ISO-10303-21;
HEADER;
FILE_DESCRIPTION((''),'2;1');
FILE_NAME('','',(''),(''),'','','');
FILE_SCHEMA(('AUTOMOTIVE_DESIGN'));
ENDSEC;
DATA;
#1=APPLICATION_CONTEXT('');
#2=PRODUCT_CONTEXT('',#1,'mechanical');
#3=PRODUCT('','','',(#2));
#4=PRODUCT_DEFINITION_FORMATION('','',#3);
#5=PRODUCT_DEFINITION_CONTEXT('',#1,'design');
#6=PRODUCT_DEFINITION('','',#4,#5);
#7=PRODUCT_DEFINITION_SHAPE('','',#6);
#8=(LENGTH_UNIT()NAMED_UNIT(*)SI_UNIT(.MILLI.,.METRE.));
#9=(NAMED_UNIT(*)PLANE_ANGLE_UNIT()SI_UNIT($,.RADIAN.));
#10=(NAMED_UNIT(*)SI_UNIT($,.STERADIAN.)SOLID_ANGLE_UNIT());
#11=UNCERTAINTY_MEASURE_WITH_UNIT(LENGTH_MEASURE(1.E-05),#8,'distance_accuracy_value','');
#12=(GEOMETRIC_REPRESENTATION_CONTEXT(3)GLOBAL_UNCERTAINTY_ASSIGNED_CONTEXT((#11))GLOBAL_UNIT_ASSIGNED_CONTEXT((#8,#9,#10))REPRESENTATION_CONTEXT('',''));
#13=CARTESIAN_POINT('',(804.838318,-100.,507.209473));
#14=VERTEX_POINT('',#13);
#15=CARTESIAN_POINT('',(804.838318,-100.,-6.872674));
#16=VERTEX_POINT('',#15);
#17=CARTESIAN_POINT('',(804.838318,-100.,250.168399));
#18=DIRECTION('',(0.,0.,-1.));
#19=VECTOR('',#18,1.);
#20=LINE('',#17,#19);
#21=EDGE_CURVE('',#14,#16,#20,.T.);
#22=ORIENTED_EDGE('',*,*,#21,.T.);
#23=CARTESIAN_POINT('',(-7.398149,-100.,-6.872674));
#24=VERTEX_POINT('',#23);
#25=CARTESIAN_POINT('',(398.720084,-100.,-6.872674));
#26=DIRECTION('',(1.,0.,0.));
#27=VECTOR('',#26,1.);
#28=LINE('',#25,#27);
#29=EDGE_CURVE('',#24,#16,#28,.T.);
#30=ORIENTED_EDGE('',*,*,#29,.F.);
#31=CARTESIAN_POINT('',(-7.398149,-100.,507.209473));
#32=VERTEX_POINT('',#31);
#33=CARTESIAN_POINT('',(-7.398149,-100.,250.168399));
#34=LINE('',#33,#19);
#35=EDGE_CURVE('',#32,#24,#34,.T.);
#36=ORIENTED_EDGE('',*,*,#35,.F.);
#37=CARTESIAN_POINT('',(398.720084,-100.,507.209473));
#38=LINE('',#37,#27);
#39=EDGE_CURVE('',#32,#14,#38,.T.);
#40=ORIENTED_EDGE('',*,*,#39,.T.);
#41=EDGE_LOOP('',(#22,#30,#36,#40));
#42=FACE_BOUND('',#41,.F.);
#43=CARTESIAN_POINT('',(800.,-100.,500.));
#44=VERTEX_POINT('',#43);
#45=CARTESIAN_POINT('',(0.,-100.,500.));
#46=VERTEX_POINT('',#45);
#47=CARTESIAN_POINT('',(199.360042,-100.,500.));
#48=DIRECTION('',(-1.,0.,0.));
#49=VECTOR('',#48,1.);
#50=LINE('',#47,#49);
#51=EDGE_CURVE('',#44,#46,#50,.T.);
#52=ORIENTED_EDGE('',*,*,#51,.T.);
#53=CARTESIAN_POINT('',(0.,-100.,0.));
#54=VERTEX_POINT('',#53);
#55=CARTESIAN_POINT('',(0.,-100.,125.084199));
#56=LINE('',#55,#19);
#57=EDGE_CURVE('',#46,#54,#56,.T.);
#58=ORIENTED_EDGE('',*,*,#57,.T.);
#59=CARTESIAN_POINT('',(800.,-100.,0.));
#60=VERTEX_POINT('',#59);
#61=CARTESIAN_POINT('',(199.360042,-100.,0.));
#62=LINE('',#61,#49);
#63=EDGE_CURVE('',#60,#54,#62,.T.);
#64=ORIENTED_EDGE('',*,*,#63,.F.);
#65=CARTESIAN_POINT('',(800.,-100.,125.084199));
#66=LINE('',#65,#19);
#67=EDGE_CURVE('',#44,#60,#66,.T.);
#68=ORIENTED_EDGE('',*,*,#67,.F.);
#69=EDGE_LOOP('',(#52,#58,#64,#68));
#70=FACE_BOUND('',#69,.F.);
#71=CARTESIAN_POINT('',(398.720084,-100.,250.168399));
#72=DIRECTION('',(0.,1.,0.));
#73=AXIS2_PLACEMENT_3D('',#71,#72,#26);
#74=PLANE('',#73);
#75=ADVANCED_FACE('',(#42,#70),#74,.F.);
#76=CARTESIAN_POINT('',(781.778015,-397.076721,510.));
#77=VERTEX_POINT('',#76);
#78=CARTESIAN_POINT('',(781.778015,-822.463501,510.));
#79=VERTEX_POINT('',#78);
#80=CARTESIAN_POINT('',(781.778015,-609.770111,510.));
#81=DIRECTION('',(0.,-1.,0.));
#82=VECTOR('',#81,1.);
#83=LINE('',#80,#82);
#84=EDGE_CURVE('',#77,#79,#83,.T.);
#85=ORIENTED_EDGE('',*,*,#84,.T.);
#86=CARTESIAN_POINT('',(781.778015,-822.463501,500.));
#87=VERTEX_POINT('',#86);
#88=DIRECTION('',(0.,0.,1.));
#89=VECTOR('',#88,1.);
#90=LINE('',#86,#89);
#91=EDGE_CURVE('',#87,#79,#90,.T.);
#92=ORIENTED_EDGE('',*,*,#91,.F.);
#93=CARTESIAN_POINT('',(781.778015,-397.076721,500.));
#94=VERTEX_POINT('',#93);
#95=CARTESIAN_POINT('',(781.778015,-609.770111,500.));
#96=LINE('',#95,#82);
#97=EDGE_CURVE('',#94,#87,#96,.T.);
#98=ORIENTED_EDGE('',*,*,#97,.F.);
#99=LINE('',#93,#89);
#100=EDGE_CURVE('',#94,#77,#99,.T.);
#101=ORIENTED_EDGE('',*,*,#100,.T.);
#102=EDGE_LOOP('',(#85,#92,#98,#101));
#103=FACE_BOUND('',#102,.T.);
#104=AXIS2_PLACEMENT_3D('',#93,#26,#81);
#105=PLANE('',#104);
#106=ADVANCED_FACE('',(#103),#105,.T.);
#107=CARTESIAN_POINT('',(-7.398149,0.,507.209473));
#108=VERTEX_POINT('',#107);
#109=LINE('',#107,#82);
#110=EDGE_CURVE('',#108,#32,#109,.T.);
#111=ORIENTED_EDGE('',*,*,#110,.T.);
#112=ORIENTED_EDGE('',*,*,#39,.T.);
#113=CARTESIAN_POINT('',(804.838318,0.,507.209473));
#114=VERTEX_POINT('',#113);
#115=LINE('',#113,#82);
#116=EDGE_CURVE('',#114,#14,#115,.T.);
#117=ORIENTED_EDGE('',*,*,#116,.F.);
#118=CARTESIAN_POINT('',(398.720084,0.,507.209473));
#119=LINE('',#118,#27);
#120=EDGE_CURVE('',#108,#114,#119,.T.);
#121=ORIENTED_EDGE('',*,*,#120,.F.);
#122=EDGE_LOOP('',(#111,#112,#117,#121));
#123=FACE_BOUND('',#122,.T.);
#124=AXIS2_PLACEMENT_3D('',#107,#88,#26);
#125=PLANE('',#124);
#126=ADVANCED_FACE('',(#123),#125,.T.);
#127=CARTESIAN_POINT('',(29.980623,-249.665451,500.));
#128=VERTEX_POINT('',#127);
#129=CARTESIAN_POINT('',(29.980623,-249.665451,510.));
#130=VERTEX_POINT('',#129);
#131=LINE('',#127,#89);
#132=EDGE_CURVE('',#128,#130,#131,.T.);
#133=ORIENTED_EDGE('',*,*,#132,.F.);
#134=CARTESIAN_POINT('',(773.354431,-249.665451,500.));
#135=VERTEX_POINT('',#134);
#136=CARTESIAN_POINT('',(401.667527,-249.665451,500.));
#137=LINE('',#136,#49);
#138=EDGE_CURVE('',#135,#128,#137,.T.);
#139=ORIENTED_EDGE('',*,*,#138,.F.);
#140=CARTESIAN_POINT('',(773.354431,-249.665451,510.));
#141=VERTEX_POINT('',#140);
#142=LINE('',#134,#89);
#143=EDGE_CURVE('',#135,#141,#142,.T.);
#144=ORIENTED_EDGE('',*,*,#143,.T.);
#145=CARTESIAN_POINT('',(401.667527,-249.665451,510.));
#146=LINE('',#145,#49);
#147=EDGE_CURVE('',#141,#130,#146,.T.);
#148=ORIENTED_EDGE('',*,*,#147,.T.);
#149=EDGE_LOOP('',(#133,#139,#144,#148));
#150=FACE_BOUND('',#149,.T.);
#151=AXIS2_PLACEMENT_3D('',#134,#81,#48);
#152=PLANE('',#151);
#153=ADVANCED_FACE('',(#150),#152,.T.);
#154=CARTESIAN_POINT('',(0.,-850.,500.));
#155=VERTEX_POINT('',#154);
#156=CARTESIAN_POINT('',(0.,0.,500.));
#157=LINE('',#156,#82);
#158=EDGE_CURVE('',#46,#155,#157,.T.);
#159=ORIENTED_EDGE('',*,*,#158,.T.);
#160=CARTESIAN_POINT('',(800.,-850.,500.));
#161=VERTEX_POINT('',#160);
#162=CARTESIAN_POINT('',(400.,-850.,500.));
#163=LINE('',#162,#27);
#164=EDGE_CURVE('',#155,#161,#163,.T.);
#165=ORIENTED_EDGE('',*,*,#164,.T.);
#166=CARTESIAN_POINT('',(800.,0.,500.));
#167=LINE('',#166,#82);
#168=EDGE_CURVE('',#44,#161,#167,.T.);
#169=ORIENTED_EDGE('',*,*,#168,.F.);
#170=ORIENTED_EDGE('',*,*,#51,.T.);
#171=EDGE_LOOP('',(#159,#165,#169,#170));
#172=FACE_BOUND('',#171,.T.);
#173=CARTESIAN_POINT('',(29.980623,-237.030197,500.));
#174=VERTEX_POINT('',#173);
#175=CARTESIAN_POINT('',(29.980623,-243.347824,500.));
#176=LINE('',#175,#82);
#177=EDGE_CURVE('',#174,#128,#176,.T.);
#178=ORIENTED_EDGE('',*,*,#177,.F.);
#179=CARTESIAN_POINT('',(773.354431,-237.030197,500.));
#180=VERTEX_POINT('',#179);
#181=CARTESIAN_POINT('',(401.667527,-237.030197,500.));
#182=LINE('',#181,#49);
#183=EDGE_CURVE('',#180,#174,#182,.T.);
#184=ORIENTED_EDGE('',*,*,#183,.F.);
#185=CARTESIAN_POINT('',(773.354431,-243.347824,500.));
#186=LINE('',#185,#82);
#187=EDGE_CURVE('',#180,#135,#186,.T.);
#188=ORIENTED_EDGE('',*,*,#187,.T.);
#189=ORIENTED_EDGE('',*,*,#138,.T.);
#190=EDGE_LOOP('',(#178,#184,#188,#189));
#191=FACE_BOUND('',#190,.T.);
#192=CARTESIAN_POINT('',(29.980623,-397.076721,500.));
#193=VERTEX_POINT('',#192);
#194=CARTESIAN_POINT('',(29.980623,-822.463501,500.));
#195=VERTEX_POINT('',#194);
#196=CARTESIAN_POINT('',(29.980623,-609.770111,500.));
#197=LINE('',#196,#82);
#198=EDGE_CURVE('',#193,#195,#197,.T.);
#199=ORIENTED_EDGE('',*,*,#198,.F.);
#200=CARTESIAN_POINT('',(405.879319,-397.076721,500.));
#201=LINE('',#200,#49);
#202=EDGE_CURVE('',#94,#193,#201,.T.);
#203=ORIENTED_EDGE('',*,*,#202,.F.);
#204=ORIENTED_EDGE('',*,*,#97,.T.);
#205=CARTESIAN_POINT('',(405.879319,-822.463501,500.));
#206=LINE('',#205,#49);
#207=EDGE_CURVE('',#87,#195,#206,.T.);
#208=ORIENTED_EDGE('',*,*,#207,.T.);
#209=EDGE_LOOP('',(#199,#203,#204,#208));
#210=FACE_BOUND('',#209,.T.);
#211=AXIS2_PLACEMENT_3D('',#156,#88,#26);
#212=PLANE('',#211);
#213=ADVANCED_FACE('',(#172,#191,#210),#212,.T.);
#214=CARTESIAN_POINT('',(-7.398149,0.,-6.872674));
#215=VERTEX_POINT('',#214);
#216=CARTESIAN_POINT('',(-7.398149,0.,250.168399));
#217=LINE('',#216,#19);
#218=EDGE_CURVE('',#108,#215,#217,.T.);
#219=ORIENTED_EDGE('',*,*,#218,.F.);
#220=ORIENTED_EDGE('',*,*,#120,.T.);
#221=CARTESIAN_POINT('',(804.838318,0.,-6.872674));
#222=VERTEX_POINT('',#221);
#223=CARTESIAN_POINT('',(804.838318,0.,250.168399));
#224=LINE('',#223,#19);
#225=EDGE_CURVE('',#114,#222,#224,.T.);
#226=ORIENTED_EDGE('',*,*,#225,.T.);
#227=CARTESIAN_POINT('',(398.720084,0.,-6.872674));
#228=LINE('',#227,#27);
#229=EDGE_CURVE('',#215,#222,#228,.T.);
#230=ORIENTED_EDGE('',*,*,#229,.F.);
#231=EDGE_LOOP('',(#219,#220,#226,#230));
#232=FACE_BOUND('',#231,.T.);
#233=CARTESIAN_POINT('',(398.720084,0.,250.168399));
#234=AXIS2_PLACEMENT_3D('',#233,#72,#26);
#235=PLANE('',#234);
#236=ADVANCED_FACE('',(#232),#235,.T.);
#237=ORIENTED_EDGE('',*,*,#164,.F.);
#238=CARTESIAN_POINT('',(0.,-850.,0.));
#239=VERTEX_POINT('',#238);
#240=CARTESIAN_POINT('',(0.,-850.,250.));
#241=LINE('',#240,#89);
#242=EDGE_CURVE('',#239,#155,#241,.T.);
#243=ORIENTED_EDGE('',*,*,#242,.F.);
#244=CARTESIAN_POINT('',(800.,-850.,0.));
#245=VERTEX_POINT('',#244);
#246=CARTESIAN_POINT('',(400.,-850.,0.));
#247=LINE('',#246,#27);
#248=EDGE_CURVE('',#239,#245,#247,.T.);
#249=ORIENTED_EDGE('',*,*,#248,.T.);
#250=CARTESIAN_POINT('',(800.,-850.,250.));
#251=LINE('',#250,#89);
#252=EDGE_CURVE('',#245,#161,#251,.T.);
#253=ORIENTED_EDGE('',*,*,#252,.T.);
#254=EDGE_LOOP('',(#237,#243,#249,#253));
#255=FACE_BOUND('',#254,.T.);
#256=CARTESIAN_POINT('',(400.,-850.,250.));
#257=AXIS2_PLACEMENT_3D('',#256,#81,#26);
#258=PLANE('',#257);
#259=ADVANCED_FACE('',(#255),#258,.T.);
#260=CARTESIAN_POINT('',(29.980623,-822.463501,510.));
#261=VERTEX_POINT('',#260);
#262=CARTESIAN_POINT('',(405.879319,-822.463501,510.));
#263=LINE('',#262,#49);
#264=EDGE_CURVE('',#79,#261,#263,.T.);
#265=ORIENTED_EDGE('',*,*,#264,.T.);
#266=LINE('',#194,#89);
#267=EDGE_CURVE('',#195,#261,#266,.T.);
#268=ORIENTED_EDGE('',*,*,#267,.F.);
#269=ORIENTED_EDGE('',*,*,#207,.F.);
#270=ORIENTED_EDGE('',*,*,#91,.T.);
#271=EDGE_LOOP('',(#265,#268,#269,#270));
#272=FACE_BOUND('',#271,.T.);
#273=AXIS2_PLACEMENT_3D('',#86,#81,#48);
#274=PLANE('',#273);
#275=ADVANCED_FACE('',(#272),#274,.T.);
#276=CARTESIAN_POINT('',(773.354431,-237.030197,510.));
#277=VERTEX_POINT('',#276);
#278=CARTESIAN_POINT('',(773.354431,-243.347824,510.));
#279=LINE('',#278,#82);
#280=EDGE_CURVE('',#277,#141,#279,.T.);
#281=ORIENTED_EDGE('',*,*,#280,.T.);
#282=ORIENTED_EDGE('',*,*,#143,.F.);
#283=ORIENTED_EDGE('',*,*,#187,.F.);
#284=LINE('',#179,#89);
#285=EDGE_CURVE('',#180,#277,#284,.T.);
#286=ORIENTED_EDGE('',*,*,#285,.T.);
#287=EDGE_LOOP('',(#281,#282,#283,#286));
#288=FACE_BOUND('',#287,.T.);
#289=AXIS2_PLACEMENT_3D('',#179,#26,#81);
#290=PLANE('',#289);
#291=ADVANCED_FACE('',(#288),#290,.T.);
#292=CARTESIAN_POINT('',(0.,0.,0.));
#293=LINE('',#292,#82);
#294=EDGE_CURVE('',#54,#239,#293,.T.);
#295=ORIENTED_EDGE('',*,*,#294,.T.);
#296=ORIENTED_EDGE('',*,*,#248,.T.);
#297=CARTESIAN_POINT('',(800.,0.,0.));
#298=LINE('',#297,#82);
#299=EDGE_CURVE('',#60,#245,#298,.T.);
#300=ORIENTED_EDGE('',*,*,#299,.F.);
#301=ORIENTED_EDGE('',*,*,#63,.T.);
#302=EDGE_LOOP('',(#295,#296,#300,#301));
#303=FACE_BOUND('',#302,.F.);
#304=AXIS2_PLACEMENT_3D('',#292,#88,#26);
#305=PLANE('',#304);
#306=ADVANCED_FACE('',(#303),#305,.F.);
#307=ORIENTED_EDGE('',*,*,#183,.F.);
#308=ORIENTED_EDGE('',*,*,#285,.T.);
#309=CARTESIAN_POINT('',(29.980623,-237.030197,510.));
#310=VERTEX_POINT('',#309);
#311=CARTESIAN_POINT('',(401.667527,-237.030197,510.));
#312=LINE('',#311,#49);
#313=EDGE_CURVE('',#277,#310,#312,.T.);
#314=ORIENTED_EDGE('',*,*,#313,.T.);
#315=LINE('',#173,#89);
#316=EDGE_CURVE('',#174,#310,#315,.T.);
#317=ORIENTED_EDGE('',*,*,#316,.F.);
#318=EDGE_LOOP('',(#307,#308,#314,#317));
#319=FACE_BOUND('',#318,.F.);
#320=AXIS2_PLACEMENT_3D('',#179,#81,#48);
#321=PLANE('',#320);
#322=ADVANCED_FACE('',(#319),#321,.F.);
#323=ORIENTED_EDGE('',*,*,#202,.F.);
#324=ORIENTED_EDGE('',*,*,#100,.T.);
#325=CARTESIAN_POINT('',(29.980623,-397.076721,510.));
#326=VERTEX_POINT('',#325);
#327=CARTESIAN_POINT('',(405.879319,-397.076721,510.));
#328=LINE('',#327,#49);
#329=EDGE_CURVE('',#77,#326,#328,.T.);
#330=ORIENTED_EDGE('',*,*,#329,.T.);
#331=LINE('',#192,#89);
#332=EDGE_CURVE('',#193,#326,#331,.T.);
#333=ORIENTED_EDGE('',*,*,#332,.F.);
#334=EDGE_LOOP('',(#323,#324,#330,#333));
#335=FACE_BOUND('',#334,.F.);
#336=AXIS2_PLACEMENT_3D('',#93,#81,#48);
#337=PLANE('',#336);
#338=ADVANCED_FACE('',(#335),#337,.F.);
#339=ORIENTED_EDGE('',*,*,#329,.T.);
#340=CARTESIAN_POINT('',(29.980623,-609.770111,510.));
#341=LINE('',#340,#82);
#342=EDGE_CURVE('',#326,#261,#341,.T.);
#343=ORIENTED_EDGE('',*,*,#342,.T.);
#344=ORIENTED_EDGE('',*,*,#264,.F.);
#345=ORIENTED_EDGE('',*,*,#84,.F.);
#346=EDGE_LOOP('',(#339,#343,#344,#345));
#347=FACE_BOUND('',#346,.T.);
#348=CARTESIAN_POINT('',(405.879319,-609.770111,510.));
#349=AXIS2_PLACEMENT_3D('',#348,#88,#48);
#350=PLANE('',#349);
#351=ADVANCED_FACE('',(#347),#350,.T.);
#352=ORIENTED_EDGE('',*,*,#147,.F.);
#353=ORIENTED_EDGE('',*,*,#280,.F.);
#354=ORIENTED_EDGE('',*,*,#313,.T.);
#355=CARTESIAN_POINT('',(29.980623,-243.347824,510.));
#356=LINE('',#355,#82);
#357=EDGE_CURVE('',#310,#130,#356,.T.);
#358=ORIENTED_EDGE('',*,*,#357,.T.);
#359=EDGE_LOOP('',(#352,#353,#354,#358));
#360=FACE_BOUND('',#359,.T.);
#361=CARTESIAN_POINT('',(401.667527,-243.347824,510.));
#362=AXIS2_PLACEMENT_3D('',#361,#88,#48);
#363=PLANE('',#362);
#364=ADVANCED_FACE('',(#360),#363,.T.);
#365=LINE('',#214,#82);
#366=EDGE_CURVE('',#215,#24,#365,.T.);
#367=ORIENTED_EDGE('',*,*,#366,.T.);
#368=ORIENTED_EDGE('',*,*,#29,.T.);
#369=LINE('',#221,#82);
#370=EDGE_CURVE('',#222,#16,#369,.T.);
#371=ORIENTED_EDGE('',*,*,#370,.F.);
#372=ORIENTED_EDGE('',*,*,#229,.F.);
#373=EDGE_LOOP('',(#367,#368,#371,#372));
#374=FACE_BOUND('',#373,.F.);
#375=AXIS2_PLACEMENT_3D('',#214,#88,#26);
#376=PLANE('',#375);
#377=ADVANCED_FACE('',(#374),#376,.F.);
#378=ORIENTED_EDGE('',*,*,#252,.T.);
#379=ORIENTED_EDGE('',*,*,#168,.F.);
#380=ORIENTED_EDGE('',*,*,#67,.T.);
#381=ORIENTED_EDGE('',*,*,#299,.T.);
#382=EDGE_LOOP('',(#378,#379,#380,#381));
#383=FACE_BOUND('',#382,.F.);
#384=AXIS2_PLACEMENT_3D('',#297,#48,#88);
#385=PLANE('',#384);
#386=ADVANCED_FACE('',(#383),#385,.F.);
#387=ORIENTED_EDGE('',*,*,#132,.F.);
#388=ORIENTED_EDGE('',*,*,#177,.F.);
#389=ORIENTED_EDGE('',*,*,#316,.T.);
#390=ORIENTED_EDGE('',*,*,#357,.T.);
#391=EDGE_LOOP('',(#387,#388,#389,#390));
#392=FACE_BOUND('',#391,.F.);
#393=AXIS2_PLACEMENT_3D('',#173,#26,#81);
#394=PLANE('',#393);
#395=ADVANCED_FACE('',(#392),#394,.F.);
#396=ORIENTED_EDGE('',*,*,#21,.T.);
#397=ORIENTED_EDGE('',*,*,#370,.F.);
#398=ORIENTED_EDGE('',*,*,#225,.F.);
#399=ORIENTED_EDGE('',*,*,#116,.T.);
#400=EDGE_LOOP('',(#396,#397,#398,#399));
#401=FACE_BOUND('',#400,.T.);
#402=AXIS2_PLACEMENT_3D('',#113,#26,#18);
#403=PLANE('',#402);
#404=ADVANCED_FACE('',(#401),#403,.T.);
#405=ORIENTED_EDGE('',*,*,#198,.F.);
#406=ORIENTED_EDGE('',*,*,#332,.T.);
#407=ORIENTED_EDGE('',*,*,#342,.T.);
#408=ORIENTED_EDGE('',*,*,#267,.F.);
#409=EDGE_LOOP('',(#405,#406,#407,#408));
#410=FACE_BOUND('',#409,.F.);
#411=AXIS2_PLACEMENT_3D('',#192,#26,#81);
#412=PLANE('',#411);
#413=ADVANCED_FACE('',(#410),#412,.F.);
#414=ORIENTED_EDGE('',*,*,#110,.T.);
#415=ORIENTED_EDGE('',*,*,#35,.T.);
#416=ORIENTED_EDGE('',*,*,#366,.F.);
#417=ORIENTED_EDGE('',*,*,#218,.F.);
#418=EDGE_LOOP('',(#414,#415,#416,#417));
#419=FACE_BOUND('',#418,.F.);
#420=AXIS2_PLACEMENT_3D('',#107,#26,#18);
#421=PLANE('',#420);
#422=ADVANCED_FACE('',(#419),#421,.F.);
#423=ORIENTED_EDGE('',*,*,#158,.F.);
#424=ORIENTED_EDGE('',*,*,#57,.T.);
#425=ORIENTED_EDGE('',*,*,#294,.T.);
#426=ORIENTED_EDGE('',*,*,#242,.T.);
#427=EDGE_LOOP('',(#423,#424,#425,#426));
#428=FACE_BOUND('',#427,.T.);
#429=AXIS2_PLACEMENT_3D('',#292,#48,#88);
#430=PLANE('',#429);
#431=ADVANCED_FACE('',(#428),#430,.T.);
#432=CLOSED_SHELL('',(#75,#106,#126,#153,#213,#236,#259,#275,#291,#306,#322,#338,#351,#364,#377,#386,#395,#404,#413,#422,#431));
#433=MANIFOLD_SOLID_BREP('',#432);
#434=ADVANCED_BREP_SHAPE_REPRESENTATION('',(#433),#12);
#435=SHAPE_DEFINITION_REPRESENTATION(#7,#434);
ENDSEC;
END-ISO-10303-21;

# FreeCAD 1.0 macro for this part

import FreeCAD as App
import Part
import Sketcher

V = App.Vector
Q = App.Units.Quantity


def add_polygon(sketch, points):
    """Adds a closed chain of lines whose ends are joined by coincident constraints."""
    first, n = sketch.GeometryCount, len(points)
    for a, b in zip(points, points[1:] + points[:1]):
        sketch.addGeometry(Part.LineSegment(App.Vector(*a, 0), App.Vector(*b, 0)), False)
    for i in range(n):
        sketch.addConstraint(Sketcher.Constraint("Coincident", first + i, 2, first + (i + 1) % n, 1))

doc = App.newDocument("Part")
body = doc.addObject("PartDesign::Body", "Body")

# Sketch on XZ plane
sketch1 = body.newObject("Sketcher::SketchObject", "Sketch")
sketch1.AttachmentSupport = (doc.getObject("XZ_Plane"), [""])
sketch1.MapMode = "FlatFace"
add_polygon(sketch1, [(0, 500), (0, 0), (800, 0), (800, 500)])  # lines 0-3
sketch1.addConstraint(Sketcher.Constraint("Vertical", 0))
sketch1.addConstraint(Sketcher.Constraint("Horizontal", 1))
sketch1.addConstraint(Sketcher.Constraint("Vertical", 2))
sketch1.addConstraint(Sketcher.Constraint("Horizontal", 3))
sketch1.addConstraint(Sketcher.Constraint("Coincident", 0, 2, -1, 1))
sketch1.addConstraint(Sketcher.Constraint("DistanceX", 1, 1, 1, 2, Q("800 mm")))
sketch1.addConstraint(Sketcher.Constraint("DistanceY", 0, 2, 0, 1, Q("500 mm")))
pad1 = body.newObject("PartDesign::Pad", "Pad")
pad1.Profile = sketch1
pad1.Length = 850

# Sketch on XZ plane
sketch2 = body.newObject("Sketcher::SketchObject", "Sketch001")
sketch2.AttachmentSupport = (doc.getObject("XZ_Plane"), [""])
sketch2.MapMode = "FlatFace"
add_polygon(sketch2, [(-7.398149, -6.872674), (-7.398149, 507.209473), (804.838318, 507.209473), (804.838318, -6.872674)])  # lines 0-3
sketch2.addConstraint(Sketcher.Constraint("Vertical", 0))
sketch2.addConstraint(Sketcher.Constraint("Horizontal", 1))
sketch2.addConstraint(Sketcher.Constraint("Vertical", 2))
sketch2.addConstraint(Sketcher.Constraint("Horizontal", 3))
sketch2.addConstraint(Sketcher.Constraint("DistanceX", 1, 1, 1, 2, Q("812.236467 mm")))
sketch2.addConstraint(Sketcher.Constraint("DistanceY", 0, 1, 0, 2, Q("514.082147 mm")))
sketch2.addConstraint(Sketcher.Constraint("DistanceX", 0, 2, -1, 1, Q("7.398149 mm")))
sketch2.addConstraint(Sketcher.Constraint("DistanceY", -1, 1, 0, 2, Q("507.209473 mm")))
pad2 = body.newObject("PartDesign::Pad", "Pad001")
pad2.Profile = sketch2
pad2.Length = 100

# Sketch on XY plane
sketch3 = body.newObject("Sketcher::SketchObject", "Sketch002")
sketch3.AttachmentSupport = (doc.getObject("XY_Plane"), [""])
sketch3.MapMode = "FlatFace"
sketch3.AttachmentOffset = App.Placement(V(0, 0, 500), App.Rotation())
add_polygon(sketch3, [(773.354431, -249.665451), (773.354431, -237.030197), (29.980623, -237.030197), (29.980623, -249.665451)])  # lines 0-3
add_polygon(sketch3, [(781.778015, -822.463501), (781.778015, -397.076721), (29.980623, -397.076721), (29.980623, -822.463501)])  # lines 4-7
sketch3.addConstraint(Sketcher.Constraint("Vertical", 0))
sketch3.addConstraint(Sketcher.Constraint("Horizontal", 1))
sketch3.addConstraint(Sketcher.Constraint("Vertical", 2))
sketch3.addConstraint(Sketcher.Constraint("Horizontal", 3))
sketch3.addConstraint(Sketcher.Constraint("Vertical", 4))
sketch3.addConstraint(Sketcher.Constraint("Horizontal", 5))
sketch3.addConstraint(Sketcher.Constraint("Vertical", 6))
sketch3.addConstraint(Sketcher.Constraint("Horizontal", 7))
sketch3.addConstraint(Sketcher.Constraint("Vertical", 2, 2, 5, 2))
sketch3.addConstraint(Sketcher.Constraint("DistanceX", 5, 2, 5, 1, Q("751.797392 mm")))
sketch3.addConstraint(Sketcher.Constraint("DistanceY", 4, 1, 4, 2, Q("425.38678 mm")))
sketch3.addConstraint(Sketcher.Constraint("DistanceY", 6, 2, -1, 1, Q("822.463501 mm")))
sketch3.addConstraint(Sketcher.Constraint("DistanceX", 1, 2, 1, 1, Q("743.373808 mm")))
sketch3.addConstraint(Sketcher.Constraint("DistanceY", 0, 1, 0, 2, Q("12.635254 mm")))
sketch3.addConstraint(Sketcher.Constraint("DistanceX", -1, 1, 0, 2, Q("773.354431 mm")))
sketch3.addConstraint(Sketcher.Constraint("DistanceY", 2, 2, -1, 1, Q("249.665451 mm")))
pad3 = body.newObject("PartDesign::Pad", "Pad002")
pad3.Profile = sketch3
pad3.Length = 10

doc.recompute()
